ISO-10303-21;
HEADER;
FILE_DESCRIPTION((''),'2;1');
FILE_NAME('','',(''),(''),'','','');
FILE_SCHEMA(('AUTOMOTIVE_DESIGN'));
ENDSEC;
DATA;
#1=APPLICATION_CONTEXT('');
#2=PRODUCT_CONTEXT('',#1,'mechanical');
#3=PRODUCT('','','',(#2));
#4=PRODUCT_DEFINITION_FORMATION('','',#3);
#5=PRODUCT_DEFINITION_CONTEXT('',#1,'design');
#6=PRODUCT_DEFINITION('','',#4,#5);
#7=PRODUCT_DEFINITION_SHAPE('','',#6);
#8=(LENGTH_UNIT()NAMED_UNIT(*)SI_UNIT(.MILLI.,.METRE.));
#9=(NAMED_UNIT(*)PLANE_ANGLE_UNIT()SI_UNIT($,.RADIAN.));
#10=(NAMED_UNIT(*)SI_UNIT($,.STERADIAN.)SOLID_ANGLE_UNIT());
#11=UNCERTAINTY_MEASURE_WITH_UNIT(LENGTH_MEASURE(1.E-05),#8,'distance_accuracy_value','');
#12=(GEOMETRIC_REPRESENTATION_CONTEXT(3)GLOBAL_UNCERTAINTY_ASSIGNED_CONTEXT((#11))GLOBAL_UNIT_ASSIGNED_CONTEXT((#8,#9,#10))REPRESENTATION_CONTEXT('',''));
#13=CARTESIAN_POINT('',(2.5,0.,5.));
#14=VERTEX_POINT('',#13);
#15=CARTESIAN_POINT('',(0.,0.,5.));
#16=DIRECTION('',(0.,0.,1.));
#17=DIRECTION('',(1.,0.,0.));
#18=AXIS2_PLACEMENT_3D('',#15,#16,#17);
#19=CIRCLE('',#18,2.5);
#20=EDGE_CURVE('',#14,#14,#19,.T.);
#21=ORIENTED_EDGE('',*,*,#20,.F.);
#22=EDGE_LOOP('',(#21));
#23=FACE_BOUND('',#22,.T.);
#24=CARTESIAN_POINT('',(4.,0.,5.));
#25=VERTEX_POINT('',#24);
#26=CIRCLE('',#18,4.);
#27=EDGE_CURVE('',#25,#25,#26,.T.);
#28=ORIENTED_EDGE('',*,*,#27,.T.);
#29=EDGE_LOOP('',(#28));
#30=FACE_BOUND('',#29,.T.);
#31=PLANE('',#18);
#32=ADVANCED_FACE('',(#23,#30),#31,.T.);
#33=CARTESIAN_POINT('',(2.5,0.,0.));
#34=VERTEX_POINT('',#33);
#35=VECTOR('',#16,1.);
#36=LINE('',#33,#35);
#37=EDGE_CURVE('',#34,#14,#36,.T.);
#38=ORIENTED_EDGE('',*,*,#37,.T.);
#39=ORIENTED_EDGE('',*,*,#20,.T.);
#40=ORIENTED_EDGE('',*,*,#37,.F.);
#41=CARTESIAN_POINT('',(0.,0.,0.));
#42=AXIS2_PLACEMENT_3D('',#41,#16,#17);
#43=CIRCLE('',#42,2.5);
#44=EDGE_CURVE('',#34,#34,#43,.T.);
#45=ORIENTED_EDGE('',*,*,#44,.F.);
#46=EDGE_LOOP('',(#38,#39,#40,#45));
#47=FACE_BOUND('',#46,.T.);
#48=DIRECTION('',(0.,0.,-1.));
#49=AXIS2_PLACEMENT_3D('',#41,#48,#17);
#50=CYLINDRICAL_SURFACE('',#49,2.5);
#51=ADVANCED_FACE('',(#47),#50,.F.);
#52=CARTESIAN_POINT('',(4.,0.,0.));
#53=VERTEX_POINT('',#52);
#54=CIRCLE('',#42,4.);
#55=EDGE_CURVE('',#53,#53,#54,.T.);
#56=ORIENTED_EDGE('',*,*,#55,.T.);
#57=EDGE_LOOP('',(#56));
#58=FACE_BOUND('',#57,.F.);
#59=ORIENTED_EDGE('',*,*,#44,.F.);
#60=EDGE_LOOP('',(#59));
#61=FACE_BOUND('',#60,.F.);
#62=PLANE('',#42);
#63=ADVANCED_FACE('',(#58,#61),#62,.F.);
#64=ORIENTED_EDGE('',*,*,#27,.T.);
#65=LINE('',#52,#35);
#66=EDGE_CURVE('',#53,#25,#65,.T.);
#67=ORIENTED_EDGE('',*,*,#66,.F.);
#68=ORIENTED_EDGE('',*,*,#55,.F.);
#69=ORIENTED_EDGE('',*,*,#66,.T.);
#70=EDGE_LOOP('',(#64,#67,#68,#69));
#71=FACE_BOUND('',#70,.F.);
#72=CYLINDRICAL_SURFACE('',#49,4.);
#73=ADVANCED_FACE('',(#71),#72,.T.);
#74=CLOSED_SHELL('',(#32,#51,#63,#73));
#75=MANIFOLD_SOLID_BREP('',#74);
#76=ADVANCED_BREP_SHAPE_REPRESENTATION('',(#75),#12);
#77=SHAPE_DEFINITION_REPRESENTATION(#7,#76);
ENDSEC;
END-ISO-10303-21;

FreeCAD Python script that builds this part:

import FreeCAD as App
import Part
import Sketcher
Q = App.Units.Quantity

doc = App.newDocument("Part")
body = doc.addObject("PartDesign::Body", "Body")

# Sketch on XY plane
sketch1 = doc.addObject("Sketcher::SketchObject", "Sketch")
body.addObject(sketch1)
sketch1.AttachmentSupport = (doc.XY_Plane, [""])
sketch1.MapMode = "FlatFace"
sketch1.addGeometry([
    Part.Circle(App.Vector(0, 0, 0), App.Vector(0, 0, 1), 4),
    Part.Circle(App.Vector(0, 0, 0), App.Vector(0, 0, 1), 2.5),
], False)
sketch1.addConstraint([
    Sketcher.Constraint("Coincident", 0, 3, -1, 1),
    Sketcher.Constraint("Coincident", 1, 3, -1, 1),
    Sketcher.Constraint("Diameter", 0, Q("8 mm")),
    Sketcher.Constraint("Diameter", 1, Q("5 mm")),
])
pad1 = doc.addObject("PartDesign::Pad", "Pad")
body.addObject(pad1)
pad1.Profile = sketch1
pad1.Length = 5

doc.recompute()
